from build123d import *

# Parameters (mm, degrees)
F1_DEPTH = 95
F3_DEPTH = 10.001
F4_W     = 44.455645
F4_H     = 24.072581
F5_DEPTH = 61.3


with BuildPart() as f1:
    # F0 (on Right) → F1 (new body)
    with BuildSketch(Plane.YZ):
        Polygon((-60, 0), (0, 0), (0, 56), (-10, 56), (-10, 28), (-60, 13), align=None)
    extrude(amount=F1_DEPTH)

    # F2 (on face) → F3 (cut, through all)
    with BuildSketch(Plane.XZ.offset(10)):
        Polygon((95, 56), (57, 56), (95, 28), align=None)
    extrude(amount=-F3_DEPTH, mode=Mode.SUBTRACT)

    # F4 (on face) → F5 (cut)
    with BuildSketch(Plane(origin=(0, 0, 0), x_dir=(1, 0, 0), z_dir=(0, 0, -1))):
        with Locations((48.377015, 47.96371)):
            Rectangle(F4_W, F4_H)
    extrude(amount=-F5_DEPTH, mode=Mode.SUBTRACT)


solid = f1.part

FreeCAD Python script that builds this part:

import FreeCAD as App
import Part
import Sketcher

V = App.Vector
Q = App.Units.Quantity

doc = App.newDocument("Part")
body = doc.addObject("PartDesign::Body", "Body")

sketch1 = doc.addObject("Sketcher::SketchObject", "Sketch")
body.addObject(sketch1)
sketch1.AttachmentSupport = (doc.YZ_Plane, [""])
sketch1.MapMode = "FlatFace"
sketch1.addGeometry([
    Part.LineSegment(V(-60, 0, 0), V(0, 0, 0)),
    Part.LineSegment(V(0, 0, 0), V(0, 56, 0)),
    Part.LineSegment(V(0, 56, 0), V(-10, 56, 0)),
    Part.LineSegment(V(-10, 56, 0), V(-10, 28, 0)),
    Part.LineSegment(V(-10, 28, 0), V(-60, 13, 0)),
    Part.LineSegment(V(-60, 13, 0), V(-60, 0, 0)),
], False)
sketch1.addConstraint([
    Sketcher.Constraint("Coincident", 0, 2, 1, 1),
    Sketcher.Constraint("Coincident", 1, 2, 2, 1),
    Sketcher.Constraint("Coincident", 2, 2, 3, 1),
    Sketcher.Constraint("Coincident", 3, 2, 4, 1),
    Sketcher.Constraint("Coincident", 4, 2, 5, 1),
    Sketcher.Constraint("Coincident", 5, 2, 0, 1),
    Sketcher.Constraint("Horizontal", 0),
    Sketcher.Constraint("Vertical", 1),
    Sketcher.Constraint("Horizontal", 2),
    Sketcher.Constraint("Vertical", 3),
    Sketcher.Constraint("Vertical", 5),
    Sketcher.Constraint("Coincident", 0, 2, -1, 1),
    Sketcher.Constraint("DistanceX", 0, 1, 0, 2, Q("60 mm")),
    Sketcher.Constraint("DistanceX", 2, 2, 2, 1, Q("10 mm")),
    Sketcher.Constraint("DistanceY", 1, 1, 1, 2, Q("56 mm")),
    Sketcher.Constraint("DistanceY", 3, 2, 3, 1, Q("28 mm")),
    Sketcher.Constraint("DistanceY", 5, 2, 5, 1, Q("13 mm")),
])
pad1 = doc.addObject("PartDesign::Pad", "Pad")
body.addObject(pad1)
pad1.Profile = sketch1
pad1.Length = 95

sketch2 = doc.addObject("Sketcher::SketchObject", "Sketch001")
body.addObject(sketch2)
sketch2.AttachmentSupport = (doc.XZ_Plane, [""])
sketch2.MapMode = "FlatFace"
sketch2.AttachmentOffset = App.Placement(V(0, 0, 10), App.Rotation())
sketch2.addGeometry([
    Part.LineSegment(V(95, 56, 0), V(57, 56, 0)),
    Part.LineSegment(V(57, 56, 0), V(95, 28, 0)),
    Part.LineSegment(V(95, 28, 0), V(95, 56, 0)),
], False)
sketch2.addConstraint([
    Sketcher.Constraint("Coincident", 0, 2, 1, 1),
    Sketcher.Constraint("Coincident", 1, 2, 2, 1),
    Sketcher.Constraint("Coincident", 2, 2, 0, 1),
    Sketcher.Constraint("Horizontal", 0),
    Sketcher.Constraint("Vertical", 2),
    Sketcher.Constraint("DistanceX", 0, 2, 0, 1, Q("38 mm")),
    Sketcher.Constraint("DistanceY", 2, 1, 2, 2, Q("28 mm")),
    Sketcher.Constraint("DistanceX", -1, 1, 0, 2, Q("57 mm")),
    Sketcher.Constraint("DistanceY", -1, 1, 0, 2, Q("56 mm")),
])
pocket1 = doc.addObject("PartDesign::Pocket", "Pocket")
body.addObject(pocket1)
pocket1.Profile = sketch2
pocket1.Type = "ThroughAll"

sketch3 = doc.addObject("Sketcher::SketchObject", "Sketch002")
body.addObject(sketch3)
sketch3.AttachmentSupport = (doc.XY_Plane, [""])
sketch3.MapMode = "FlatFace"
sketch3.addGeometry([
    Part.LineSegment(V(26.149193, -60, 0), V(26.149193, -35.927419, 0)),
    Part.LineSegment(V(26.149193, -35.927419, 0), V(70.604838, -35.927419, 0)),
    Part.LineSegment(V(70.604838, -35.927419, 0), V(70.604838, -60, 0)),
    Part.LineSegment(V(70.604838, -60, 0), V(26.149193, -60, 0)),
], False)
sketch3.addConstraint([
    Sketcher.Constraint("Coincident", 0, 2, 1, 1),
    Sketcher.Constraint("Coincident", 1, 2, 2, 1),
    Sketcher.Constraint("Coincident", 2, 2, 3, 1),
    Sketcher.Constraint("Coincident", 3, 2, 0, 1),
    Sketcher.Constraint("Vertical", 0),
    Sketcher.Constraint("Horizontal", 1),
    Sketcher.Constraint("Vertical", 2),
    Sketcher.Constraint("Horizontal", 3),
    Sketcher.Constraint("DistanceY", 2, 2, -1, 1, Q("60 mm")),
    Sketcher.Constraint("DistanceY", 0, 1, 0, 2, Q("24.072581 mm")),
    Sketcher.Constraint("DistanceX", 1, 1, 1, 2, Q("44.455645 mm")),
    Sketcher.Constraint("DistanceX", -1, 1, 0, 2, Q("26.149193 mm")),
])
pocket2 = doc.addObject("PartDesign::Pocket", "Pocket001")
body.addObject(pocket2)
pocket2.Profile = sketch3
pocket2.Length = 61.3
pocket2.Reversed = True

doc.recompute()
